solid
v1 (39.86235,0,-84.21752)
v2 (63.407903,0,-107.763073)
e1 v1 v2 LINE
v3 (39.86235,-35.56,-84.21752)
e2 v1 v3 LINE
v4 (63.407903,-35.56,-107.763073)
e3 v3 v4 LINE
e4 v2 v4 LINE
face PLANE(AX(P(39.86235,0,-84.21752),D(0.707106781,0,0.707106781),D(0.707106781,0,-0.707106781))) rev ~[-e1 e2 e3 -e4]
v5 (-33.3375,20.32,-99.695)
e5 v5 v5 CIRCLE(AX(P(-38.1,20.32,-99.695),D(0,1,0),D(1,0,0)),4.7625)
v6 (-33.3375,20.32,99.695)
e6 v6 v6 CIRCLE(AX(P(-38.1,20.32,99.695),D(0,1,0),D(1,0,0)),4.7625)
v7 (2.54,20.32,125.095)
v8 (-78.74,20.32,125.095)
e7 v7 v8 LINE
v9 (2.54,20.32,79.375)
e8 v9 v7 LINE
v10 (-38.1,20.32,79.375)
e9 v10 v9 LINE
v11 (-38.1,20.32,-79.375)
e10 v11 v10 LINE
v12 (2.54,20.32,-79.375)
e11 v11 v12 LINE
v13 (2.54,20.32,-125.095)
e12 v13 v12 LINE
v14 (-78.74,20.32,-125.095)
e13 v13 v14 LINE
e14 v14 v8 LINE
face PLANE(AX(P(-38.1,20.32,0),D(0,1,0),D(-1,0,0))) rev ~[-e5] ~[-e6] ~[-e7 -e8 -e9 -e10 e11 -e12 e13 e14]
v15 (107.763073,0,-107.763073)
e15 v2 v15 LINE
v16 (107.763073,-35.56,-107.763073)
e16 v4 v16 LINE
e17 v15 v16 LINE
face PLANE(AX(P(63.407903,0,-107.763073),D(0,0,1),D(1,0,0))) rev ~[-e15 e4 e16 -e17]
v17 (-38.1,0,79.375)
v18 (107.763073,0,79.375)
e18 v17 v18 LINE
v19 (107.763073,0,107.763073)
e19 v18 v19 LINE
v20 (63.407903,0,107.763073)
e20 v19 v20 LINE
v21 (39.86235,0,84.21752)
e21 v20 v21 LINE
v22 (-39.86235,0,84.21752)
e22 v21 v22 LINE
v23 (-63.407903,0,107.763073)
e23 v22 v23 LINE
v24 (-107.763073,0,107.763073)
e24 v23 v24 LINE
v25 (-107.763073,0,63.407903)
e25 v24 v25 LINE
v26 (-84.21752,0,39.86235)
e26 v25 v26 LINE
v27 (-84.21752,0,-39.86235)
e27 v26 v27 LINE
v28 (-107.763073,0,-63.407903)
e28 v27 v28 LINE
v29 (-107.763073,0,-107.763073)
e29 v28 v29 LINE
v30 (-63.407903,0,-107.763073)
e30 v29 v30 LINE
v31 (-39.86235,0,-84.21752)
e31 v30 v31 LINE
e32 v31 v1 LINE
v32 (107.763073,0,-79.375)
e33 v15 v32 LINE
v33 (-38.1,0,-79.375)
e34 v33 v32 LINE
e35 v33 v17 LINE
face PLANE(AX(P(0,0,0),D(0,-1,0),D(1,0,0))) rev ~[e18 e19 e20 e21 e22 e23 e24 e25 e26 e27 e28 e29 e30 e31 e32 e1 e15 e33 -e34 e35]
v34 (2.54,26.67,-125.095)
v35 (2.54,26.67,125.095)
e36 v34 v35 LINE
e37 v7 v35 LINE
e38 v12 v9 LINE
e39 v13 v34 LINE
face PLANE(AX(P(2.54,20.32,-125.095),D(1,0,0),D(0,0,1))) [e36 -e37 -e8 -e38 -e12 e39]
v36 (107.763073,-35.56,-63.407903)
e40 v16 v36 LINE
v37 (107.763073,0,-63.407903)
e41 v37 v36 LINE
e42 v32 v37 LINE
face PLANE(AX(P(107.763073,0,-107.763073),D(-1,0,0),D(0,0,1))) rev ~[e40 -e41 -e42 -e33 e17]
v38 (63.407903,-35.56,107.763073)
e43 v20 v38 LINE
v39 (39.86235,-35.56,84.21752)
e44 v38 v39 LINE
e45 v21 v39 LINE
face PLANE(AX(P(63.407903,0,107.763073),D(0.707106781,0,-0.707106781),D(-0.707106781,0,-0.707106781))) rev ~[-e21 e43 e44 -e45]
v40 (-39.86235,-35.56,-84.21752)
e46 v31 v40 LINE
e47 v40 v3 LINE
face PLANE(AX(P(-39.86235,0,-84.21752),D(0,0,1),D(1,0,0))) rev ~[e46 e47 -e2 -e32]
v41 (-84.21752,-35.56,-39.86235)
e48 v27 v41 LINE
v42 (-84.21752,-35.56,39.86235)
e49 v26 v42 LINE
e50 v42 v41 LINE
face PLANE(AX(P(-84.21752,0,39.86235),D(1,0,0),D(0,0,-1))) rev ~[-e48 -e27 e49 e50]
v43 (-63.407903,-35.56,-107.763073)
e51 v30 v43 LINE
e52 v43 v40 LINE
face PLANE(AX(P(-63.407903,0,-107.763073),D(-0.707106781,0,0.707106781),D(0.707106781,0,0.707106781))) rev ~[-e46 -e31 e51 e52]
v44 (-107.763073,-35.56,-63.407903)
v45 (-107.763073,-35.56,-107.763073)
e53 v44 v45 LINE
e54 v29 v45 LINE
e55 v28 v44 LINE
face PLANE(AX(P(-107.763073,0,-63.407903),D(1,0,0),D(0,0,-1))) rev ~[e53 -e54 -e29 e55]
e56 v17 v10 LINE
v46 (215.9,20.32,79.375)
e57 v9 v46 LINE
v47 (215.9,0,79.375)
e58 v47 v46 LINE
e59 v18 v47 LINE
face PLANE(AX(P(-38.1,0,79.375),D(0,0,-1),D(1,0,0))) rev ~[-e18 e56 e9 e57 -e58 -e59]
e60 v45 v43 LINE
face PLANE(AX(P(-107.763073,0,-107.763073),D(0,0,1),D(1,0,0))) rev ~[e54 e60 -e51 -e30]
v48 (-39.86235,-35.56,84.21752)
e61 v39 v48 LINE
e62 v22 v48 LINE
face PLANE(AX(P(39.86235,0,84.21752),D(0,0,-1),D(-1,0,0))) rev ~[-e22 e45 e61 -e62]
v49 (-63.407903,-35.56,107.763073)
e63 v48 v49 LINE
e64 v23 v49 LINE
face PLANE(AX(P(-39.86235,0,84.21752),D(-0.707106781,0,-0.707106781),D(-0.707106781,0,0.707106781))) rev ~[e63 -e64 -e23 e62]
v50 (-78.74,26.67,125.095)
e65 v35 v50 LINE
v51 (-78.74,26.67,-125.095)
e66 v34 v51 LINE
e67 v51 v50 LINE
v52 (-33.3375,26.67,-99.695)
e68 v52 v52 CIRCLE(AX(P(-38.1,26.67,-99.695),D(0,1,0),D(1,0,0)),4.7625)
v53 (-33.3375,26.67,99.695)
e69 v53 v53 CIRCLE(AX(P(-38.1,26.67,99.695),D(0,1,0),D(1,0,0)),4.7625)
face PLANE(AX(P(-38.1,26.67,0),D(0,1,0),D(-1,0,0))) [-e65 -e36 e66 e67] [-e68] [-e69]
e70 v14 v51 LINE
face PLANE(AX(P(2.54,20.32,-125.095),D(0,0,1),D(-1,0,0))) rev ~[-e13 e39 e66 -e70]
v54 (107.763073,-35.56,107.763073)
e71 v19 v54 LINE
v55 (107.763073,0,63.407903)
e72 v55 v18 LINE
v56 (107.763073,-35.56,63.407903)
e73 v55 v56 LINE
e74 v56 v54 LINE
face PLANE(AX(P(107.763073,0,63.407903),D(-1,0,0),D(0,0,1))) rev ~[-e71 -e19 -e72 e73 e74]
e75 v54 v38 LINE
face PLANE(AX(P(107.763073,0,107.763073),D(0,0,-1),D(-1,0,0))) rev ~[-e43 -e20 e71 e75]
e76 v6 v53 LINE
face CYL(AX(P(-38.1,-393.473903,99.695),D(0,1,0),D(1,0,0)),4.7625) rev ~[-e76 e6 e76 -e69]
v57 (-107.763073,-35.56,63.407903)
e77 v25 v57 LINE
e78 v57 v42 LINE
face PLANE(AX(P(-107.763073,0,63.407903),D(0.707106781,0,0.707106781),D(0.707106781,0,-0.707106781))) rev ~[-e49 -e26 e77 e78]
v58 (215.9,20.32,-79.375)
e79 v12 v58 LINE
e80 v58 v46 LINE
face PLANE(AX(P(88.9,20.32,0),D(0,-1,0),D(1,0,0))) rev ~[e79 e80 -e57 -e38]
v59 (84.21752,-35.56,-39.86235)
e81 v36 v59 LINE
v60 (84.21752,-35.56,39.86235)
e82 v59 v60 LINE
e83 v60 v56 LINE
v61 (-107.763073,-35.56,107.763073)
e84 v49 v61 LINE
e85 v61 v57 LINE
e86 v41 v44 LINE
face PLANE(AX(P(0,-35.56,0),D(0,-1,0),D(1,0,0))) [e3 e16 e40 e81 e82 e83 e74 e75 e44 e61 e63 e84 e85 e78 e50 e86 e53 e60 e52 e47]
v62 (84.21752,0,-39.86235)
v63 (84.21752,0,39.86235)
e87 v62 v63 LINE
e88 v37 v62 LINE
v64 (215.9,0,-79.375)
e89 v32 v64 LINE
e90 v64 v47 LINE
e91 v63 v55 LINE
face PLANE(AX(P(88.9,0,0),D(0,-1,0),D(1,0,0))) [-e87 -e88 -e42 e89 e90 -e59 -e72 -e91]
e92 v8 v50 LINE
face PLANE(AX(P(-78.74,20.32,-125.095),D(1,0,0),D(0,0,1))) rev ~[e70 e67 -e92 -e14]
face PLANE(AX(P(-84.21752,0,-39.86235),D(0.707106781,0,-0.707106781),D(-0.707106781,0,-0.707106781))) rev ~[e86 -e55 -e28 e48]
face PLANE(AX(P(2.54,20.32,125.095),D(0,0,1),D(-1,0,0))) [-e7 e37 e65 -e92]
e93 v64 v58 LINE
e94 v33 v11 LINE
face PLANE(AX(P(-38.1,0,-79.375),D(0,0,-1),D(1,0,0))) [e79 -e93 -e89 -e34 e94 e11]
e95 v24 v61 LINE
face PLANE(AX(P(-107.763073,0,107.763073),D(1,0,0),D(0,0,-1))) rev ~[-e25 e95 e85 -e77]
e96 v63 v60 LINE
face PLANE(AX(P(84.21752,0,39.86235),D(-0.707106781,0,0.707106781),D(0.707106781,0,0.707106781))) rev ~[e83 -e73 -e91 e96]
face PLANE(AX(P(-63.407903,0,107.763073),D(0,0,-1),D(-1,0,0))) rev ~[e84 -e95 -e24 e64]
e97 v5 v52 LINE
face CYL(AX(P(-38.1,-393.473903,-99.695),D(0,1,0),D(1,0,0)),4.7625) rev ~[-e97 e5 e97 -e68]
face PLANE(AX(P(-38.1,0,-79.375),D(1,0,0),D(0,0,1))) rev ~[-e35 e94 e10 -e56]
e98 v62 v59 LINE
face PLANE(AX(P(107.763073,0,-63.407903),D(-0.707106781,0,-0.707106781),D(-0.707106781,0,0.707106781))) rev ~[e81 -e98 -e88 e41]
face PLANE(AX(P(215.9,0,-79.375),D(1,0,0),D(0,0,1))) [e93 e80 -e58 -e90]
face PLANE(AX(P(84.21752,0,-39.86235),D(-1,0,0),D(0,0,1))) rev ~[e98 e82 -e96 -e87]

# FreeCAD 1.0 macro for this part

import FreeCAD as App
import Part
import Sketcher
from FreeCAD import Vector
Q = App.Units.Quantity

doc = App.newDocument("Part")
body = doc.addObject("PartDesign::Body", "Body")

sketch1 = doc.addObject("Sketcher::SketchObject", "Sketch")
body.addObject(sketch1)
sketch1.AttachmentSupport = (doc.XZ_Plane, [""])
sketch1.MapMode = "FlatFace"
sketch1.addGeometry([
    Part.LineSegment(Vector(108, 63, 0), Vector(108, 108, 0)),
    Part.LineSegment(Vector(108, 108, 0), Vector(63, 108, 0)),
    Part.LineSegment(Vector(63, 108, 0), Vector(40, 84, 0)),
    Part.LineSegment(Vector(40, 84, 0), Vector(-40, 84, 0)),
    Part.LineSegment(Vector(-40, 84, 0), Vector(-63, 108, 0)),
    Part.LineSegment(Vector(-63, 108, 0), Vector(-108, 108, 0)),
    Part.LineSegment(Vector(-108, 108, 0), Vector(-108, 63, 0)),
    Part.LineSegment(Vector(-108, 63, 0), Vector(-84, 40, 0)),
    Part.LineSegment(Vector(-84, 40, 0), Vector(-84, -40, 0)),
    Part.LineSegment(Vector(-84, -40, 0), Vector(-108, -63, 0)),
    Part.LineSegment(Vector(-108, -63, 0), Vector(-108, -108, 0)),
    Part.LineSegment(Vector(-108, -108, 0), Vector(-63, -108, 0)),
    Part.LineSegment(Vector(-63, -108, 0), Vector(-40, -84, 0)),
    Part.LineSegment(Vector(-40, -84, 0), Vector(40, -84, 0)),
    Part.LineSegment(Vector(40, -84, 0), Vector(63, -108, 0)),
    Part.LineSegment(Vector(63, -108, 0), Vector(108, -108, 0)),
    Part.LineSegment(Vector(108, -108, 0), Vector(108, -63, 0)),
    Part.LineSegment(Vector(108, -63, 0), Vector(84, -40, 0)),
    Part.LineSegment(Vector(84, -40, 0), Vector(84, 40, 0)),
    Part.LineSegment(Vector(84, 40, 0), Vector(108, 63, 0)),
], False)
sketch1.addConstraint([
    Sketcher.Constraint("Coincident", 0, 2, 1, 1),
    Sketcher.Constraint("Coincident", 1, 2, 2, 1),
    Sketcher.Constraint("Coincident", 2, 2, 3, 1),
    Sketcher.Constraint("Coincident", 3, 2, 4, 1),
    Sketcher.Constraint("Coincident", 4, 2, 5, 1),
    Sketcher.Constraint("Coincident", 5, 2, 6, 1),
    Sketcher.Constraint("Coincident", 6, 2, 7, 1),
    Sketcher.Constraint("Coincident", 7, 2, 8, 1),
    Sketcher.Constraint("Coincident", 8, 2, 9, 1),
    Sketcher.Constraint("Coincident", 9, 2, 10, 1),
    Sketcher.Constraint("Coincident", 10, 2, 11, 1),
    Sketcher.Constraint("Coincident", 11, 2, 12, 1),
    Sketcher.Constraint("Coincident", 12, 2, 13, 1),
    Sketcher.Constraint("Coincident", 13, 2, 14, 1),
    Sketcher.Constraint("Coincident", 14, 2, 15, 1),
    Sketcher.Constraint("Coincident", 15, 2, 16, 1),
    Sketcher.Constraint("Coincident", 16, 2, 17, 1),
    Sketcher.Constraint("Coincident", 17, 2, 18, 1),
    Sketcher.Constraint("Coincident", 18, 2, 19, 1),
    Sketcher.Constraint("Coincident", 19, 2, 0, 1),
    Sketcher.Constraint("Vertical", 0),
    Sketcher.Constraint("Horizontal", 1),
    Sketcher.Constraint("Horizontal", 3),
    Sketcher.Constraint("Horizontal", 5),
    Sketcher.Constraint("Vertical", 6),
    Sketcher.Constraint("Vertical", 8),
    Sketcher.Constraint("Vertical", 10),
    Sketcher.Constraint("Horizontal", 11),
    Sketcher.Constraint("Horizontal", 13),
    Sketcher.Constraint("Horizontal", 15),
    Sketcher.Constraint("Vertical", 16),
    Sketcher.Constraint("Vertical", 18),
    Sketcher.Constraint("Symmetric", 0, 2, 10, 2, -1, 1),
    Sketcher.Constraint("Symmetric", 2, 2, 12, 2, -1, 1),
    Sketcher.Constraint("Symmetric", 4, 2, 14, 2, -1, 1),
    Sketcher.Constraint("Symmetric", 6, 2, 16, 2, -1, 1),
    Sketcher.Constraint("Symmetric", 7, 2, 17, 2, -1, 1),
    Sketcher.Constraint("Symmetric", 1, 2, 4, 2, -2),
    Sketcher.Constraint("Symmetric", 9, 2, 16, 2, -2),
    Sketcher.Constraint("Perpendicular", 2, 4),
    Sketcher.Constraint("Parallel", 4, 7),
    Sketcher.Constraint("Perpendicular", 7, 9),
    Sketcher.Constraint("Parallel", 9, 12),
    Sketcher.Constraint("Perpendicular", 12, 14),
    Sketcher.Constraint("Perpendicular", 17, 19),
    Sketcher.Constraint("Horizontal", 8, 2, 17, 2),
    Sketcher.Constraint("Horizontal", 7, 2, 18, 2),
    Sketcher.Constraint("Equal", 15, 0),
    Sketcher.Constraint("Equal", 13, 8),
    Sketcher.Constraint("Equal", 4, 7),
    Sketcher.Constraint("DistanceX", 3, 2, 3, 1, Q("79.7247 mm")),
    Sketcher.Constraint("DistanceX", 1, 2, 1, 1, Q("44.35517 mm")),
    Sketcher.Constraint("Distance", 2, Q("33.29844 mm")),
])
pad1 = doc.addObject("PartDesign::Pad", "Pad")
body.addObject(pad1)
pad1.Profile = sketch1
pad1.Length = Q("1.4 in")

sketch2 = doc.addObject("Sketcher::SketchObject", "Sketch001")
body.addObject(sketch2)
sketch2.AttachmentSupport = (doc.XZ_Plane, [""])
sketch2.MapMode = "FlatFace"
sketch2.addGeometry([
    Part.LineSegment(Vector(-38, 79, 0), Vector(-38, -79, 0)),
    Part.LineSegment(Vector(-38, -79, 0), Vector(216, -79, 0)),
    Part.LineSegment(Vector(216, -79, 0), Vector(216, 79, 0)),
    Part.LineSegment(Vector(216, 79, 0), Vector(-38, 79, 0)),
], False)
sketch2.addConstraint([
    Sketcher.Constraint("Coincident", 0, 2, 1, 1),
    Sketcher.Constraint("Coincident", 1, 2, 2, 1),
    Sketcher.Constraint("Coincident", 2, 2, 3, 1),
    Sketcher.Constraint("Coincident", 3, 2, 0, 1),
    Sketcher.Constraint("Vertical", 0),
    Sketcher.Constraint("Horizontal", 1),
    Sketcher.Constraint("Vertical", 2),
    Sketcher.Constraint("Horizontal", 3),
    Sketcher.Constraint("DistanceX", 1, 1, 1, 2, Q("10 in")),
    Sketcher.Constraint("DistanceY", 0, 2, 0, 1, Q("6.25 in")),
    Sketcher.Constraint("DistanceX", 0, 2, -1, 1, Q("1.5 in")),
    Sketcher.Constraint("DistanceY", 0, 2, -1, 1, Q("3.125 in")),
])
pad2 = doc.addObject("PartDesign::Pad", "Pad001")
body.addObject(pad2)
pad2.Profile = sketch2
pad2.Length = Q("0.8 in")
pad2.Reversed = True

sketch3 = doc.addObject("Sketcher::SketchObject", "Sketch002")
body.addObject(sketch3)
sketch3.AttachmentSupport = (doc.XZ_Plane, [""])
sketch3.MapMode = "FlatFace"
sketch3.AttachmentOffset = App.Placement(Vector(0, 0, -0.8 * 25.4), App.Rotation())
sketch3.addGeometry([
    Part.LineSegment(Vector(3, 125, 0), Vector(3, -125, 0)),
    Part.LineSegment(Vector(3, -125, 0), Vector(-79, -125, 0)),
    Part.LineSegment(Vector(-79, -125, 0), Vector(-79, 125, 0)),
    Part.LineSegment(Vector(-79, 125, 0), Vector(3, 125, 0)),
], False)
sketch3.addConstraint([
    Sketcher.Constraint("Coincident", 0, 2, 1, 1),
    Sketcher.Constraint("Coincident", 1, 2, 2, 1),
    Sketcher.Constraint("Coincident", 2, 2, 3, 1),
    Sketcher.Constraint("Coincident", 3, 2, 0, 1),
    Sketcher.Constraint("Vertical", 0),
    Sketcher.Constraint("Horizontal", 1),
    Sketcher.Constraint("Vertical", 2),
    Sketcher.Constraint("Horizontal", 3),
    Sketcher.Constraint("DistanceX", 1, 2, 1, 1, Q("3.2 in")),
    Sketcher.Constraint("DistanceY", 0, 2, 0, 1, Q("9.85 in")),
    Sketcher.Constraint("DistanceX", -1, 1, 0, 2, Q("0.1 in")),
    Sketcher.Constraint("DistanceY", 0, 2, -1, 1, Q("4.925 in")),
])
pad3 = doc.addObject("PartDesign::Pad", "Pad002")
body.addObject(pad3)
pad3.Profile = sketch3
pad3.Length = Q("0.25 in")
pad3.Reversed = True

sketch4 = doc.addObject("Sketcher::SketchObject", "Sketch003")
body.addObject(sketch4)
sketch4.AttachmentSupport = (doc.XZ_Plane, [""])
sketch4.MapMode = "FlatFace"
sketch4.AttachmentOffset = App.Placement(Vector(0, 0, -0.8 * 25.4), App.Rotation())
sketch4.addGeometry([
    Part.Circle(Vector(-38.1, -99.7, 0), Vector(0, 0, 1), 4.8),
    Part.Circle(Vector(-38.1, 99.7, 0), Vector(0, 0, 1), 4.8),
], False)
sketch4.addConstraint([
    Sketcher.Constraint("Equal", 0, 1),
    Sketcher.Constraint("Symmetric", 0, 3, 1, 3, -1),
    Sketcher.Constraint("Diameter", 0, Q("0.375 in")),
    Sketcher.Constraint("DistanceX", 0, 3, -1, 1, Q("1.5 in")),
    Sketcher.Constraint("DistanceY", 0, 3, 1, 3, Q("7.85 in")),
])
doc.recompute()
hole = doc.addObject("PartDesign::Hole", "Hole")
body.addObject(hole)
hole.Profile = sketch4
hole.ThreadType = "None"
hole.Diameter = Q("0.375 in")
hole.DepthType = "ThroughAll"

doc.recompute()
